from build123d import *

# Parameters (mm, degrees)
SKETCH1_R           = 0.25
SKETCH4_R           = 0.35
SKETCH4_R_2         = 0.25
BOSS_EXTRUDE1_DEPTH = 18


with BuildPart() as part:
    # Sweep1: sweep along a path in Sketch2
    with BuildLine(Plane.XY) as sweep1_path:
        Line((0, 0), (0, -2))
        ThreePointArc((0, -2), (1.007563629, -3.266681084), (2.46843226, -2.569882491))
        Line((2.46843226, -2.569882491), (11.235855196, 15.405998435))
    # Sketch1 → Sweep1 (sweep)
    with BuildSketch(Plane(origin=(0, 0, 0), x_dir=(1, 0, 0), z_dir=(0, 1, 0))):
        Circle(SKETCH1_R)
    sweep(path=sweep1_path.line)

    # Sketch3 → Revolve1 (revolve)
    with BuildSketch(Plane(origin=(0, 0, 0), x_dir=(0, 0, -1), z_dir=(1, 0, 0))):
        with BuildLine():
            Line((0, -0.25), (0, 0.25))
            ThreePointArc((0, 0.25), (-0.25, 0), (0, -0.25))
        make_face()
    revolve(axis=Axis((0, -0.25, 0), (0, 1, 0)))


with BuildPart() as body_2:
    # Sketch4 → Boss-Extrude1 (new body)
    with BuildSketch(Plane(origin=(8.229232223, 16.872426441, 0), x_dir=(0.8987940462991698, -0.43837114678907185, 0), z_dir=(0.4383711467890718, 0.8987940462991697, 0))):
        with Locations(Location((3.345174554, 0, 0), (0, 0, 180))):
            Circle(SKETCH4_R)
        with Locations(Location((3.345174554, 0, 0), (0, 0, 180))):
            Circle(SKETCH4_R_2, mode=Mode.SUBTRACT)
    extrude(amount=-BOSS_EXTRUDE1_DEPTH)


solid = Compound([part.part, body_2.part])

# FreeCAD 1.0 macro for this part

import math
import FreeCAD as App
import Part
import Sketcher
Q = App.Units.Quantity

doc = App.newDocument("Part")
body = doc.addObject("PartDesign::Body", "Body")

# Sketch on XZ plane
sketch1 = doc.addObject("Sketcher::SketchObject", "Sketch")
body.addObject(sketch1)
sketch1.AttachmentSupport = (doc.XZ_Plane, [""])
sketch1.MapMode = "FlatFace"
sketch1.addGeometry(Part.Circle(App.Vector(0, 0, 0), App.Vector(0, 0, 1), 0.25), False)
sketch1.addConstraint(Sketcher.Constraint("Coincident", 0, 3, -1, 1))
sketch1.addConstraint(Sketcher.Constraint("Diameter", 0, Q("0.5 mm")))

# Sketch on XY plane
sketch2 = doc.addObject("Sketcher::SketchObject", "Sketch001")
body.addObject(sketch2)
sketch2.AttachmentSupport = (doc.XY_Plane, [""])
sketch2.MapMode = "FlatFace"
sketch2.addGeometry(Part.LineSegment(App.Vector(0, 0, 0), App.Vector(0, -2, 0)), False)
sketch2.addGeometry(Part.ArcOfCircle(Part.Circle(App.Vector(1.3, -2, 0), App.Vector(0, 0, 1), 1.3), math.radians(180), math.radians(334)), False)
sketch2.addGeometry(Part.LineSegment(App.Vector(2.5, -2.6, 0), App.Vector(11.2, 15.4, 0)), False)
sketch2.addConstraint(Sketcher.Constraint("Tangent", 0, 2, 1, 1))
sketch2.addConstraint(Sketcher.Constraint("Tangent", 1, 2, 2, 1))
sketch2.addConstraint(Sketcher.Constraint("Vertical", 0))
sketch2.addConstraint(Sketcher.Constraint("Coincident", 0, 1, -1, 1))
sketch2.addConstraint(Sketcher.Constraint("Radius", 1, Q("1.3 mm")))
sketch2.addConstraint(Sketcher.Constraint("DistanceY", 0, 2, 0, 1, Q("2 mm")))
sketch2.addConstraint(Sketcher.Constraint("Angle", 2, Q("64 deg")))
sketch2.addConstraint(Sketcher.Constraint("Distance", 2, Q("20 mm")))
doc.recompute()

additivepipe = doc.addObject("PartDesign::AdditivePipe", "AdditivePipe")
body.addObject(additivepipe)
additivepipe.Profile = sketch1
additivepipe.Spine = (sketch2, ["Edge1", "Edge2", "Edge3"])

# Sketch on YZ plane
sketch3 = doc.addObject("Sketcher::SketchObject", "Sketch002")
body.addObject(sketch3)
sketch3.AttachmentSupport = (doc.YZ_Plane, [""])
sketch3.MapMode = "FlatFace"
sketch3.addGeometry(Part.LineSegment(App.Vector(-0.25, 0, 0), App.Vector(0.25, 0, 0)), False)
sketch3.addGeometry(Part.ArcOfCircle(Part.Circle(App.Vector(0, 0, 0), App.Vector(0, 0, 1), 0.25), math.radians(0), math.radians(180)), False)
sketch3.addConstraint(Sketcher.Constraint("Coincident", 0, 1, 1, 2))
sketch3.addConstraint(Sketcher.Constraint("Coincident", 1, 1, 0, 2))
sketch3.addConstraint(Sketcher.Constraint("Horizontal", 0))
sketch3.addConstraint(Sketcher.Constraint("Coincident", 1, 3, -1, 1))
sketch3.addConstraint(Sketcher.Constraint("PointOnObject", 0, 1, -1))
sketch3.addConstraint(Sketcher.Constraint("Radius", 1, Q("0.25 mm")))
revolution = doc.addObject("PartDesign::Revolution", "Revolution")
body.addObject(revolution)
revolution.Profile = sketch3
revolution.ReferenceAxis = (sketch3, ["H_Axis"])
revolution.Angle = 360
body2 = doc.addObject("PartDesign::Body", "Body001")

# Sketch on an angled plane
sketch4 = doc.addObject("Sketcher::SketchObject", "Sketch003")
body2.addObject(sketch4)
sketch4.Placement = App.Placement(App.Vector(8.229232, 16.872426, 0), App.Rotation(App.Vector(0.898794046, -0.438371147, 0), App.Vector(0, 0, -1), App.Vector(0.438371147, 0.898794046, 0), "ZXY"))
sketch4.addGeometry(Part.Circle(App.Vector(3.35, 0, 0), App.Vector(0, 0, 1), 0.35), False)
sketch4.addGeometry(Part.Circle(App.Vector(3.35, 0, 0), App.Vector(0, 0, 1), 0.25), False)
sketch4.addConstraint(Sketcher.Constraint("Coincident", 1, 3, 0, 3))
sketch4.addConstraint(Sketcher.Constraint("PointOnObject", 0, 3, -1))
sketch4.addConstraint(Sketcher.Constraint("Diameter", 0, Q("0.7 mm")))
sketch4.addConstraint(Sketcher.Constraint("Diameter", 1, Q("0.5 mm")))
sketch4.addConstraint(Sketcher.Constraint("DistanceX", -1, 1, 0, 3, Q("3.345175 mm")))
pad1 = doc.addObject("PartDesign::Pad", "Pad")
body2.addObject(pad1)
pad1.Profile = sketch4
pad1.Length = 18
pad1.Reversed = True

doc.recompute()
